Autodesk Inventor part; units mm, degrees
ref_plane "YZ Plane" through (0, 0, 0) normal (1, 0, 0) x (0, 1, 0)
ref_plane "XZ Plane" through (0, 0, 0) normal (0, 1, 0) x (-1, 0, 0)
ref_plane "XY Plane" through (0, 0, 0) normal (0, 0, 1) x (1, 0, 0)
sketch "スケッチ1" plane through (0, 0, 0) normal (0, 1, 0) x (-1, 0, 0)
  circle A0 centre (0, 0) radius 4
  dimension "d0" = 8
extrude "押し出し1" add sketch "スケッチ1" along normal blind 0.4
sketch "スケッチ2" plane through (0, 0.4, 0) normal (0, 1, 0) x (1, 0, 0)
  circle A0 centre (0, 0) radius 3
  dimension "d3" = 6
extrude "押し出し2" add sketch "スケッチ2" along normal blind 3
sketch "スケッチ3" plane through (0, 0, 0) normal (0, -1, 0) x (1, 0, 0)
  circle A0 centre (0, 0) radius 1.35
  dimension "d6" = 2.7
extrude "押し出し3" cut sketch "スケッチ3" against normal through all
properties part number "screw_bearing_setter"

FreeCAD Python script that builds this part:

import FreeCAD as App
import Part
import Sketcher
Q = App.Units.Quantity

doc = App.newDocument("Part")
body = doc.addObject("PartDesign::Body", "Body")

# Sketch on XZ plane
sketch1 = doc.addObject("Sketcher::SketchObject", "Sketch")
body.addObject(sketch1)
sketch1.AttachmentSupport = (doc.XZ_Plane, [""])
sketch1.MapMode = "FlatFace"
sketch1.addGeometry(Part.Circle(App.Vector(0, 0, 0), App.Vector(0, 0, 1), 4), False)
sketch1.addConstraint(Sketcher.Constraint("Coincident", 0, 3, -1, 1))
sketch1.addConstraint(Sketcher.Constraint("Diameter", 0, Q("8 mm")))
pad1 = doc.addObject("PartDesign::Pad", "Pad")
body.addObject(pad1)
pad1.Profile = sketch1
pad1.Length = 0.4
pad1.Reversed = True

# Sketch on XZ plane
sketch2 = doc.addObject("Sketcher::SketchObject", "Sketch001")
body.addObject(sketch2)
sketch2.AttachmentSupport = (doc.XZ_Plane, [""])
sketch2.MapMode = "FlatFace"
sketch2.AttachmentOffset = App.Placement(App.Vector(0, 0, -0.4), App.Rotation())
sketch2.addGeometry(Part.Circle(App.Vector(0, 0, 0), App.Vector(0, 0, 1), 3), False)
sketch2.addConstraint(Sketcher.Constraint("Coincident", 0, 3, -1, 1))
sketch2.addConstraint(Sketcher.Constraint("Diameter", 0, Q("6 mm")))
pad2 = doc.addObject("PartDesign::Pad", "Pad001")
body.addObject(pad2)
pad2.Profile = sketch2
pad2.Length = 3
pad2.Reversed = True

# Sketch on XZ plane
sketch3 = doc.addObject("Sketcher::SketchObject", "Sketch002")
body.addObject(sketch3)
sketch3.AttachmentSupport = (doc.XZ_Plane, [""])
sketch3.MapMode = "FlatFace"
sketch3.addGeometry(Part.Circle(App.Vector(0, 0, 0), App.Vector(0, 0, 1), 1.4), False)
sketch3.addConstraint(Sketcher.Constraint("Coincident", 0, 3, -1, 1))
sketch3.addConstraint(Sketcher.Constraint("Diameter", 0, Q("2.7 mm")))
pocket1 = doc.addObject("PartDesign::Pocket", "Pocket")
body.addObject(pocket1)
pocket1.Profile = sketch3
pocket1.Type = "ThroughAll"

doc.recompute()
